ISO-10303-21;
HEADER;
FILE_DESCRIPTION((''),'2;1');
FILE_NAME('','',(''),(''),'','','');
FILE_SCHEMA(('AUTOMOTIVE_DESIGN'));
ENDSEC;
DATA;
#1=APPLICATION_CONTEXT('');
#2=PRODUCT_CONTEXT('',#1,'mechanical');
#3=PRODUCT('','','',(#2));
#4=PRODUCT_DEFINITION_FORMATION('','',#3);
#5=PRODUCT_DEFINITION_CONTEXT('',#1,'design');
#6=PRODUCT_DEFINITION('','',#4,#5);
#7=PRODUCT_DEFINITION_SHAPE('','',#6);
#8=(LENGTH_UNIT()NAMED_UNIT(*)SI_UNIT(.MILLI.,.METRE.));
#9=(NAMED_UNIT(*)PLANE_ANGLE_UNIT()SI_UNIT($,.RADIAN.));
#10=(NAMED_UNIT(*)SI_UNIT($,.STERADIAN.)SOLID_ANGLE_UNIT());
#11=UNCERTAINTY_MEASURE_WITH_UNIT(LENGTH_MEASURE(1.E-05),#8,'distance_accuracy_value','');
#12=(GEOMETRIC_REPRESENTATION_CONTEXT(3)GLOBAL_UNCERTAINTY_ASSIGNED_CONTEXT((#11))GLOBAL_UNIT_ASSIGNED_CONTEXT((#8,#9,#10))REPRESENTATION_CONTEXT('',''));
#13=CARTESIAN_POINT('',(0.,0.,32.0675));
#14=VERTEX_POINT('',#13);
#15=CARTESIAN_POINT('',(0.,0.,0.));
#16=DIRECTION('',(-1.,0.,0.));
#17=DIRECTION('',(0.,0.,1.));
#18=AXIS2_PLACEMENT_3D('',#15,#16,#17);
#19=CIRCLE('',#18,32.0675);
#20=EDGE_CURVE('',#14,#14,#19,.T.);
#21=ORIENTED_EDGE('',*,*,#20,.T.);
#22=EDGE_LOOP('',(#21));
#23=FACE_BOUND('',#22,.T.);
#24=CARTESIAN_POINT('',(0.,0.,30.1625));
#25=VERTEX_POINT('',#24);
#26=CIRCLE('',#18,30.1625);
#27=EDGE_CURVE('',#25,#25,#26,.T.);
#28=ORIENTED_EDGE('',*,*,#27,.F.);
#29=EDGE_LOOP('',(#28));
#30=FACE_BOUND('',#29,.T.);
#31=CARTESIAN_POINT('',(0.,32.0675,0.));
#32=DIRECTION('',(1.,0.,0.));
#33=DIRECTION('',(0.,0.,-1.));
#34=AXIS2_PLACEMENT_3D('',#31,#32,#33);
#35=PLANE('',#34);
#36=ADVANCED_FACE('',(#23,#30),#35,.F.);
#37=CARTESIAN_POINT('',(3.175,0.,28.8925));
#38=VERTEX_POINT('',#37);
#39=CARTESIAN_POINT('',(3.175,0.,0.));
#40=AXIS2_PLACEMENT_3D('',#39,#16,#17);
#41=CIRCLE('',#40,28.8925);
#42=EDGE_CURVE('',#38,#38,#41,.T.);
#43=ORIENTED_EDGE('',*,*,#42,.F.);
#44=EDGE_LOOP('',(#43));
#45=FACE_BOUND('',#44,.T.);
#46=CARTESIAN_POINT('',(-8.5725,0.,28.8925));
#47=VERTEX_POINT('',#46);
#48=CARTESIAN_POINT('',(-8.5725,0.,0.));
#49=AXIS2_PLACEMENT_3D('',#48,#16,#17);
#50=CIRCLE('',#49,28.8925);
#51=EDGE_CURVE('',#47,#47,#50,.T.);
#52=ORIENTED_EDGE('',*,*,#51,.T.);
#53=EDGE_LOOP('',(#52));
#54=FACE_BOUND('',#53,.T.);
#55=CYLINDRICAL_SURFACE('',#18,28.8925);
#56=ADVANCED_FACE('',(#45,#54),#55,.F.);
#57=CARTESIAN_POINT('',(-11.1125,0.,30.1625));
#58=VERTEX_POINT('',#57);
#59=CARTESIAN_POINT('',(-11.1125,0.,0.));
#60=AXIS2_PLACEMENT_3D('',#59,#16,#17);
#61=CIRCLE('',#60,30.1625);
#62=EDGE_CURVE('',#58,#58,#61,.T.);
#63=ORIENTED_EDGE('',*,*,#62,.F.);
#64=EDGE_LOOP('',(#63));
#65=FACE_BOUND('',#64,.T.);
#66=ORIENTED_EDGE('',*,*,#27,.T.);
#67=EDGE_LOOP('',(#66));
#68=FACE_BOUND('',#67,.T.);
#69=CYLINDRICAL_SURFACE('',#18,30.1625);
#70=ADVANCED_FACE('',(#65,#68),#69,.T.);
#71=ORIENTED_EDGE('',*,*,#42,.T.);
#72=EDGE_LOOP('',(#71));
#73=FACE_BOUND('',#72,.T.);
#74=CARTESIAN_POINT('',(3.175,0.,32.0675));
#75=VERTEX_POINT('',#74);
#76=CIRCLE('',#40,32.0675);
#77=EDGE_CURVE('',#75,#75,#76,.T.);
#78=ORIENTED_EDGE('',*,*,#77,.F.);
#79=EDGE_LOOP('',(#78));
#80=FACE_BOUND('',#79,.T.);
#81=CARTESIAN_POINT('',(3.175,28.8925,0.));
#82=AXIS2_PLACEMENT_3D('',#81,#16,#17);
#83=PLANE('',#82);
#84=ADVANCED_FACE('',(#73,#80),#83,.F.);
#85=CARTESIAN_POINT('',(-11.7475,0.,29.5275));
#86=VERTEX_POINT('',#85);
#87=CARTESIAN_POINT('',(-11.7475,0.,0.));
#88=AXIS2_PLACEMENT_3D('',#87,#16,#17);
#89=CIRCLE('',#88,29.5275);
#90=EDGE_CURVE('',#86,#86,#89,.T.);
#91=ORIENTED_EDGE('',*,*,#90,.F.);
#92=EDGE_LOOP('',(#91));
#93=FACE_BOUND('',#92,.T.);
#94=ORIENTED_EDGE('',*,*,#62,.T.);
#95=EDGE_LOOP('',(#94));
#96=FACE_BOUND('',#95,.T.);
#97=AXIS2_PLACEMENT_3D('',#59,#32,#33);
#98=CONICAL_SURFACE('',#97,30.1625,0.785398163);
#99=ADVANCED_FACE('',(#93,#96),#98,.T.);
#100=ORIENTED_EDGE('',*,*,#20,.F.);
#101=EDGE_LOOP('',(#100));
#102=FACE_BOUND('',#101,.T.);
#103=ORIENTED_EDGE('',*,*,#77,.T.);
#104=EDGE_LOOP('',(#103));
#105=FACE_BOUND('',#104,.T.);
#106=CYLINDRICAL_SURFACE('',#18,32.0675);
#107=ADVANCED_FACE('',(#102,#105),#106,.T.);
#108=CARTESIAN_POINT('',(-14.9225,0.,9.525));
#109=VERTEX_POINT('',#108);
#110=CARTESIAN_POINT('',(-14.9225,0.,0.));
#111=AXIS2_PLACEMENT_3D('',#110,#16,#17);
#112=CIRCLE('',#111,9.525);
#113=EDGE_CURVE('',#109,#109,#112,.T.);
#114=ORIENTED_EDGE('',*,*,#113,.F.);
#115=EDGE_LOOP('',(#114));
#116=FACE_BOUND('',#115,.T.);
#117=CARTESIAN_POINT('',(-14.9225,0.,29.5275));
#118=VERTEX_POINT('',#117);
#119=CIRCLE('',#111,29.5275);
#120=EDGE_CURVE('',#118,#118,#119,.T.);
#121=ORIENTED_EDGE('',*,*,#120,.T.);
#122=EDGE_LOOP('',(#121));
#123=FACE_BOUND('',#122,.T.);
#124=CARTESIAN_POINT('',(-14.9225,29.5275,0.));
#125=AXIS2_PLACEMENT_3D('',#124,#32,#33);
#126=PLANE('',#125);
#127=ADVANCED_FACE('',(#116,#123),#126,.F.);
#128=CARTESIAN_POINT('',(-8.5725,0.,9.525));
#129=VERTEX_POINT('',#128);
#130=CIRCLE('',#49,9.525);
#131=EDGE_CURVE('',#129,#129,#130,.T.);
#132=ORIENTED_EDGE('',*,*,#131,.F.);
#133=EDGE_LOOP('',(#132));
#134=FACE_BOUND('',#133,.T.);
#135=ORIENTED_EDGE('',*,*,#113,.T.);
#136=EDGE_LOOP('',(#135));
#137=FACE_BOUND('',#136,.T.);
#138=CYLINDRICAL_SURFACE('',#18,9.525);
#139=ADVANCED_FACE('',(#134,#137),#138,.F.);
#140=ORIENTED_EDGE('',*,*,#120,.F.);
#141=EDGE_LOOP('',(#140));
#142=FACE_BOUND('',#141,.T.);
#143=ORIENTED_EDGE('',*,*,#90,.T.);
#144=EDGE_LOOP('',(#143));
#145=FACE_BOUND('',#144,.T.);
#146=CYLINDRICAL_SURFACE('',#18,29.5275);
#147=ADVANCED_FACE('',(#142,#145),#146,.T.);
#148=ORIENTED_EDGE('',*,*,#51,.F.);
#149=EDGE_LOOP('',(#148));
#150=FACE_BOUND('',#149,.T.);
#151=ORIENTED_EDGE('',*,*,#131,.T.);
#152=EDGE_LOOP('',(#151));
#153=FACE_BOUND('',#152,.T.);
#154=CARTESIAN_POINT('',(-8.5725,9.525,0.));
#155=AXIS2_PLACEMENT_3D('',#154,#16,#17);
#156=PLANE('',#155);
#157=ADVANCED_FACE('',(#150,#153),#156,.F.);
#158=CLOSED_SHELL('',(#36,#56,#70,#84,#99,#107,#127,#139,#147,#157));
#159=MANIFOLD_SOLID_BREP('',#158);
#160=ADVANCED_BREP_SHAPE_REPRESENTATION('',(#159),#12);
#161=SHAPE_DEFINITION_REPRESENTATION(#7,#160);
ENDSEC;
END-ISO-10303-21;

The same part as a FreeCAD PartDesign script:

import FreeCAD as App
import Part
import Sketcher
Q = App.Units.Quantity

doc = App.newDocument("Part")
body = doc.addObject("PartDesign::Body", "Body")

sketch1 = body.newObject("Sketcher::SketchObject", "Sketch")
sketch1.AttachmentSupport = (doc.getObject("XY_Plane"), [""])
sketch1.MapMode = "FlatFace"
sketch1.addGeometry(Part.LineSegment(App.Vector(-14.9225, 9.525, 0), App.Vector(-8.5725, 9.525, 0)), False)
sketch1.addGeometry(Part.LineSegment(App.Vector(-8.5725, 9.525, 0), App.Vector(-8.5725, 28.8925, 0)), False)
sketch1.addGeometry(Part.LineSegment(App.Vector(-8.5725, 28.8925, 0), App.Vector(3.175, 28.8925, 0)), False)
sketch1.addGeometry(Part.LineSegment(App.Vector(3.175, 28.8925, 0), App.Vector(3.175, 32.0675, 0)), False)
sketch1.addGeometry(Part.LineSegment(App.Vector(3.175, 32.0675, 0), App.Vector(0, 32.0675, 0)), False)
sketch1.addGeometry(Part.LineSegment(App.Vector(0, 32.0675, 0), App.Vector(0, 30.1625, 0)), False)
sketch1.addGeometry(Part.LineSegment(App.Vector(0, 30.1625, 0), App.Vector(-11.1125, 30.1625, 0)), False)
sketch1.addGeometry(Part.LineSegment(App.Vector(-11.1125, 30.1625, 0), App.Vector(-11.7475, 29.5275, 0)), False)
sketch1.addGeometry(Part.LineSegment(App.Vector(-11.7475, 29.5275, 0), App.Vector(-14.9225, 29.5275, 0)), False)
sketch1.addGeometry(Part.LineSegment(App.Vector(-14.9225, 29.5275, 0), App.Vector(-14.9225, 9.525, 0)), False)
sketch1.addConstraint(Sketcher.Constraint("Coincident", 0, 2, 1, 1))
sketch1.addConstraint(Sketcher.Constraint("Coincident", 1, 2, 2, 1))
sketch1.addConstraint(Sketcher.Constraint("Coincident", 2, 2, 3, 1))
sketch1.addConstraint(Sketcher.Constraint("Coincident", 3, 2, 4, 1))
sketch1.addConstraint(Sketcher.Constraint("Coincident", 4, 2, 5, 1))
sketch1.addConstraint(Sketcher.Constraint("Coincident", 5, 2, 6, 1))
sketch1.addConstraint(Sketcher.Constraint("Coincident", 6, 2, 7, 1))
sketch1.addConstraint(Sketcher.Constraint("Coincident", 7, 2, 8, 1))
sketch1.addConstraint(Sketcher.Constraint("Coincident", 8, 2, 9, 1))
sketch1.addConstraint(Sketcher.Constraint("Coincident", 9, 2, 0, 1))
sketch1.addConstraint(Sketcher.Constraint("Horizontal", 0))
sketch1.addConstraint(Sketcher.Constraint("Vertical", 1))
sketch1.addConstraint(Sketcher.Constraint("Horizontal", 2))
sketch1.addConstraint(Sketcher.Constraint("Vertical", 3))
sketch1.addConstraint(Sketcher.Constraint("Horizontal", 4))
sketch1.addConstraint(Sketcher.Constraint("Vertical", 5))
sketch1.addConstraint(Sketcher.Constraint("Horizontal", 6))
sketch1.addConstraint(Sketcher.Constraint("Horizontal", 8))
sketch1.addConstraint(Sketcher.Constraint("Vertical", 9))
sketch1.addConstraint(Sketcher.Constraint("PointOnObject", 4, 2, -2))
sketch1.addConstraint(Sketcher.Constraint("Equal", 4, 8))
sketch1.addConstraint(Sketcher.Constraint("Equal", 8, 3))
sketch1.addConstraint(Sketcher.Constraint("Angle", 7, Q("-135 deg")))
sketch1.addConstraint(Sketcher.Constraint("DistanceX", 0, 1, 0, 2, Q("0.25 in")))
sketch1.addConstraint(Sketcher.Constraint("DistanceX", 6, 2, 1, 2, Q("0.1 in")))
sketch1.addConstraint(Sketcher.Constraint("DistanceY", 7, 2, 4, 2, Q("0.1 in")))
sketch1.addConstraint(Sketcher.Constraint("DistanceX", 4, 2, 4, 1, Q("0.125 in")))
sketch1.addConstraint(Sketcher.Constraint("DistanceX", 6, 2, 6, 1, Q("0.4375 in")))
sketch1.addConstraint(Sketcher.Constraint("DistanceY", 1, 1, 1, 2, Q("0.7625 in")))
sketch1.addConstraint(Sketcher.Constraint("DistanceY", -1, 1, 0, 2, Q("0.375 in")))
revolution = body.newObject("PartDesign::Revolution", "Revolution")
revolution.Profile = sketch1
revolution.ReferenceAxis = (sketch1, ["H_Axis"])
revolution.Angle = 360

doc.recompute()
